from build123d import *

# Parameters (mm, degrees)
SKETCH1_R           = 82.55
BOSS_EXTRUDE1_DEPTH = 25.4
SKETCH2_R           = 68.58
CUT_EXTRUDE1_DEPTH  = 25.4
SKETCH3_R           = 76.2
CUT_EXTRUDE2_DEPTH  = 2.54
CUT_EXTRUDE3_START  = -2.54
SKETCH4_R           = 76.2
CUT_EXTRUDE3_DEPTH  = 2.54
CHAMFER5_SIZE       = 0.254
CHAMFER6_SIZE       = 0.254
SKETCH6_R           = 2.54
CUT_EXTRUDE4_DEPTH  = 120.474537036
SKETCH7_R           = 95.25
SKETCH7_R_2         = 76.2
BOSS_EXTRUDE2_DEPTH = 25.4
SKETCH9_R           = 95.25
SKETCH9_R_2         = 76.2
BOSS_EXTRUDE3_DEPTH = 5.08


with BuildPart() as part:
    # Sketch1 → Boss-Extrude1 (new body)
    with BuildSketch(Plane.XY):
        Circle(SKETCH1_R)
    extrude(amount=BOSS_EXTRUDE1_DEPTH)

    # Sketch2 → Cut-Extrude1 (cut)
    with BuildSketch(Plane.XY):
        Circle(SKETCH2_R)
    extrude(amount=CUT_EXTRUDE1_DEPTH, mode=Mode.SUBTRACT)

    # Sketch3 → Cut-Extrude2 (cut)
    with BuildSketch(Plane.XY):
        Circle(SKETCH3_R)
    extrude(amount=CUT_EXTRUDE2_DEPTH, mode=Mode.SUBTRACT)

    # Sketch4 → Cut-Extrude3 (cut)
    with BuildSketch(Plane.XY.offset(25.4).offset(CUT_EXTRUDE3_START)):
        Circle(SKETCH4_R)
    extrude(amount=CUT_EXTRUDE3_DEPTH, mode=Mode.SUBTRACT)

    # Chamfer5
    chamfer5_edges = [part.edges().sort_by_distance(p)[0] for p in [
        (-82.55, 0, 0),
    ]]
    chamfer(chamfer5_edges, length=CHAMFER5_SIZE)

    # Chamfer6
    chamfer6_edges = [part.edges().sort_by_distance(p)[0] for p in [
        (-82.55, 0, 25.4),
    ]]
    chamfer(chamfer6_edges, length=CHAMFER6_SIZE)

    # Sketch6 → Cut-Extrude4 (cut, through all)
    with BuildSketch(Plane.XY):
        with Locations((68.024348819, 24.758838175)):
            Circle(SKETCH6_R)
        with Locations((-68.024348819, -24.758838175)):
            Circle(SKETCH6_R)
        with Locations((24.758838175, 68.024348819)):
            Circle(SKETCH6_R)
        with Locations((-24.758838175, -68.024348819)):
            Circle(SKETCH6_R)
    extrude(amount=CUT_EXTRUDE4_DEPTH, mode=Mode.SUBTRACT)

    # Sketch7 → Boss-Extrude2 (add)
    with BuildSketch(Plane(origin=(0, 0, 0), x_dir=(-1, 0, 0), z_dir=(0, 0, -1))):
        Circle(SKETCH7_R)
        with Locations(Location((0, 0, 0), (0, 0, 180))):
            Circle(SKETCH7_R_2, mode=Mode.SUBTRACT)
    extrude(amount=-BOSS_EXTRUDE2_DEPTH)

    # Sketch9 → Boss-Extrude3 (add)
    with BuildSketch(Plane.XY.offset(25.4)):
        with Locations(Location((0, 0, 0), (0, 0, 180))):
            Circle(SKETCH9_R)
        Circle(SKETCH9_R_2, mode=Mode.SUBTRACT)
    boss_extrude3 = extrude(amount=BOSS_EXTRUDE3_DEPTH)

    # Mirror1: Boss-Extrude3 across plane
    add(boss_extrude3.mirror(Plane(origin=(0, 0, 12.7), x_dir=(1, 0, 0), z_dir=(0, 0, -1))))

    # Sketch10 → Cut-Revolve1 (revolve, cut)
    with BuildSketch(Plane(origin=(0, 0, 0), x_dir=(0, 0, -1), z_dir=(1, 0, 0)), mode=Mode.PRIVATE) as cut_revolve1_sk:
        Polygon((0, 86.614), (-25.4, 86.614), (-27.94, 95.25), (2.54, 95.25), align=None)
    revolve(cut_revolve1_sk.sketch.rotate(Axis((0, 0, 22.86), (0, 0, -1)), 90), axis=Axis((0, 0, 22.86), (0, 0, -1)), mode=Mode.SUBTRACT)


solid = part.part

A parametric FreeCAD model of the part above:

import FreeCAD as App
import Part
import Sketcher

V = App.Vector
Q = App.Units.Quantity


def edges_at(feature, points):
    """Names of the edges that pass closest to the given points."""
    edges = feature.Shape.Edges
    near = lambda p: min(range(len(edges)), key=lambda i: edges[i].distToShape(Part.Vertex(*p))[0])
    return sorted({f"Edge{near(p) + 1}" for p in points})

doc = App.newDocument("Part")
params = doc.addObject("Spreadsheet::Sheet", "Params")
for row, (alias, value) in enumerate([
    ("sketch1_diameter", "6.5 in"),
    ("pad1_length", "1 in"),
    ("sketch2_diameter", "5.4 in"),
    ("pocket1_length", "1 in"),
    ("sketch3_diameter", "6 in"),
    ("pocket2_length", "0.1 in"),
    ("sketch4_diameter", "6 in"),
    ("pocket3_length", "0.1 in"),
    ("chamfer_size", "0.01 in"),
    ("chamfer2_size", "0.01 in"),
    ("sketch5_diameter", "0.2 in"),
    ("sketch6_diameter", "6 in"),
    ("sketch6_diameter2", "7.5 in"),
    ("pad2_length", "1 in"),
    ("sketch7_diameter", "6 in"),
    ("sketch7_diameter2", "7.5 in"),
    ("pad3_length", "0.2 in"),
    ("sketch8_height", "1 in"),
    ("sketch8_height2", "1.2 in"),
    ("groove_angle", "360 deg"),
], start=1):
    params.set(f"A{row}", alias)
    params.set(f"B{row}", "=" + value)
    params.setAlias(f"B{row}", alias)

body = doc.addObject("PartDesign::Body", "Body")

sketch1 = body.newObject("Sketcher::SketchObject", "Sketch")
sketch1.AttachmentSupport = (doc.getObject("XY_Plane"), [""])
sketch1.MapMode = "FlatFace"
sketch1.addGeometry(Part.Circle(V(0, 0, 0), V(0, 0, 1), 83), False)
sketch1.addConstraint([
    Sketcher.Constraint("Coincident", 0, 3, -1, 1),
    Sketcher.Constraint("Diameter", 0, Q("6.5 in")),
])
sketch1.setExpression("Constraints[1]", "Params.sketch1_diameter")
pad1 = body.newObject("PartDesign::Pad", "Pad")
pad1.Profile = sketch1
pad1.setExpression("Length", "Params.pad1_length")

sketch2 = body.newObject("Sketcher::SketchObject", "Sketch001")
sketch2.AttachmentSupport = (doc.getObject("XY_Plane"), [""])
sketch2.MapMode = "FlatFace"
sketch2.addGeometry(Part.Circle(V(0, 0, 0), V(0, 0, 1), 69), False)
sketch2.addConstraint([
    Sketcher.Constraint("Coincident", 0, 3, -1, 1),
    Sketcher.Constraint("Diameter", 0, Q("5.4 in")),
])
sketch2.setExpression("Constraints[1]", "Params.sketch2_diameter")
pocket1 = body.newObject("PartDesign::Pocket", "Pocket")
pocket1.Profile = sketch2
pocket1.setExpression("Length", "Params.pocket1_length")
pocket1.Reversed = True

sketch3 = body.newObject("Sketcher::SketchObject", "Sketch002")
sketch3.AttachmentSupport = (doc.getObject("XY_Plane"), [""])
sketch3.MapMode = "FlatFace"
sketch3.addGeometry(Part.Circle(V(0, 0, 0), V(0, 0, 1), 76), False)
sketch3.addConstraint([
    Sketcher.Constraint("Coincident", 0, 3, -1, 1),
    Sketcher.Constraint("Diameter", 0, Q("6 in")),
])
sketch3.setExpression("Constraints[1]", "Params.sketch3_diameter")
pocket2 = body.newObject("PartDesign::Pocket", "Pocket001")
pocket2.Profile = sketch3
pocket2.setExpression("Length", "Params.pocket2_length")
pocket2.Reversed = True

sketch4 = body.newObject("Sketcher::SketchObject", "Sketch003")
sketch4.AttachmentSupport = (doc.getObject("XY_Plane"), [""])
sketch4.MapMode = "FlatFace"
sketch4.AttachmentOffset = App.Placement(V(0, 0, 0.9 * 25.4), App.Rotation())
sketch4.addGeometry(Part.Circle(V(0, 0, 0), V(0, 0, 1), 76), False)
sketch4.addConstraint([
    Sketcher.Constraint("Coincident", 0, 3, -1, 1),
    Sketcher.Constraint("Diameter", 0, Q("6 in")),
])
sketch4.setExpression("Constraints[1]", "Params.sketch4_diameter")
pocket3 = body.newObject("PartDesign::Pocket", "Pocket002")
pocket3.Profile = sketch4
pocket3.setExpression("Length", "Params.pocket3_length")
pocket3.Reversed = True
doc.recompute()

chamfer = body.newObject("PartDesign::Chamfer", "Chamfer")
chamfer.Base = (pocket3, edges_at(pocket3, [(-82.55, 0, 0)]))
chamfer.setExpression("Size", "Params.chamfer_size")
doc.recompute()

chamfer2 = body.newObject("PartDesign::Chamfer", "Chamfer001")
chamfer2.Base = (chamfer, edges_at(chamfer, [(-82.55, 0, 25.4)]))
chamfer2.setExpression("Size", "Params.chamfer2_size")

sketch5 = body.newObject("Sketcher::SketchObject", "Sketch004")
sketch5.AttachmentSupport = (doc.getObject("XY_Plane"), [""])
sketch5.MapMode = "FlatFace"
sketch5.addGeometry([
    Part.Circle(V(68, 24.8, 0), V(0, 0, 1), 2.5),
    Part.Circle(V(-68, -24.8, 0), V(0, 0, 1), 2.5),
    Part.Circle(V(24.8, 68, 0), V(0, 0, 1), 2.5),
    Part.Circle(V(-24.8, -68, 0), V(0, 0, 1), 2.5),
], False)
sketch5.addConstraint([
    Sketcher.Constraint("Equal", 0, 1),
    Sketcher.Constraint("Equal", 1, 2),
    Sketcher.Constraint("Equal", 2, 3),
    Sketcher.Constraint("Symmetric", 0, 3, 1, 3, -1, 1),
    Sketcher.Constraint("Symmetric", 2, 3, 3, 3, -1, 1),
    Sketcher.Constraint("Diameter", 0, Q("0.2 in")),
    Sketcher.Constraint("DistanceX", -1, 1, 0, 3, 68.024349),
    Sketcher.Constraint("DistanceY", -1, 1, 0, 3, 24.758838),
    Sketcher.Constraint("DistanceX", -1, 1, 2, 3, 24.758838),
    Sketcher.Constraint("DistanceY", -1, 1, 2, 3, 68.024349),
])
sketch5.setExpression("Constraints[5]", "Params.sketch5_diameter")
pocket4 = body.newObject("PartDesign::Pocket", "Pocket003")
pocket4.Profile = sketch5
pocket4.Type = "ThroughAll"
pocket4.Reversed = True

sketch6 = body.newObject("Sketcher::SketchObject", "Sketch005")
sketch6.AttachmentSupport = (doc.getObject("XY_Plane"), [""])
sketch6.MapMode = "FlatFace"
sketch6.addGeometry([
    Part.Circle(V(0, 0, 0), V(0, 0, 1), 95),
    Part.Circle(V(0, 0, 0), V(0, 0, 1), 76),
], False)
sketch6.addConstraint([
    Sketcher.Constraint("Coincident", 0, 3, -1, 1),
    Sketcher.Constraint("Coincident", 1, 3, -1, 1),
    Sketcher.Constraint("Diameter", 1, Q("6 in")),
    Sketcher.Constraint("Diameter", 0, Q("7.5 in")),
])
sketch6.setExpression("Constraints[2]", "Params.sketch6_diameter")
sketch6.setExpression("Constraints[3]", "Params.sketch6_diameter2")
pad2 = body.newObject("PartDesign::Pad", "Pad001")
pad2.Profile = sketch6
pad2.setExpression("Length", "Params.pad2_length")

sketch7 = body.newObject("Sketcher::SketchObject", "Sketch006")
sketch7.AttachmentSupport = (doc.getObject("XY_Plane"), [""])
sketch7.MapMode = "FlatFace"
sketch7.AttachmentOffset = App.Placement(V(0, 0, 1 * 25.4), App.Rotation())
sketch7.addGeometry([
    Part.Circle(V(0, 0, 0), V(0, 0, 1), 95),
    Part.Circle(V(0, 0, 0), V(0, 0, 1), 76),
], False)
sketch7.addConstraint([
    Sketcher.Constraint("Coincident", 0, 3, -1, 1),
    Sketcher.Constraint("Coincident", 1, 3, -1, 1),
    Sketcher.Constraint("Diameter", 1, Q("6 in")),
    Sketcher.Constraint("Diameter", 0, Q("7.5 in")),
])
sketch7.setExpression("Constraints[2]", "Params.sketch7_diameter")
sketch7.setExpression("Constraints[3]", "Params.sketch7_diameter2")
pad3 = body.newObject("PartDesign::Pad", "Pad002")
pad3.Profile = sketch7
pad3.setExpression("Length", "Params.pad3_length")
doc.recompute()

datumplane = body.newObject("PartDesign::Plane", "DatumPlane")
datumplane.AttachmentSupport = (doc.getObject("XY_Plane"), [""])
datumplane.MapMode = "FlatFace"
datumplane.AttachmentOffset = App.Placement(V(0, 0, 0.5 * 25.4), App.Rotation())
mirrored = body.newObject("PartDesign::Mirrored", "Mirrored")
mirrored.Originals = [pad3]
mirrored.MirrorPlane = (datumplane, [""])
body.Tip = mirrored

sketch8 = body.newObject("Sketcher::SketchObject", "Sketch007")
sketch8.AttachmentSupport = (doc.getObject("YZ_Plane"), [""])
sketch8.MapMode = "FlatFace"
sketch8.addGeometry([
    Part.LineSegment(V(87, 25, 0), V(87, 0, 0)),
    Part.LineSegment(V(87, 0, 0), V(95, -3, 0)),
    Part.LineSegment(V(95, -3, 0), V(95, 28, 0)),
    Part.LineSegment(V(95, 28, 0), V(87, 25, 0)),
], False)
sketch8.addConstraint([
    Sketcher.Constraint("Coincident", 0, 2, 1, 1),
    Sketcher.Constraint("Coincident", 1, 2, 2, 1),
    Sketcher.Constraint("Coincident", 2, 2, 3, 1),
    Sketcher.Constraint("Coincident", 3, 2, 0, 1),
    Sketcher.Constraint("Vertical", 0),
    Sketcher.Constraint("Vertical", 2),
    Sketcher.Constraint("PointOnObject", 0, 2, -1),
    Sketcher.Constraint("Equal", 1, 3),
    Sketcher.Constraint("DistanceY", 0, 2, 0, 1, Q("1 in")),
    Sketcher.Constraint("DistanceY", 2, 1, 2, 2, Q("1.2 in")),
    Sketcher.Constraint("DistanceX", -1, 1, 0, 2, Q("3.41 in")),
    Sketcher.Constraint("DistanceX", -1, 1, 1, 2, Q("3.75 in")),
])
sketch8.setExpression("Constraints[8]", "Params.sketch8_height")
sketch8.setExpression("Constraints[9]", "Params.sketch8_height2")
groove = body.newObject("PartDesign::Groove", "Groove")
groove.Profile = sketch8
groove.ReferenceAxis = (sketch8, ["V_Axis"])
groove.setExpression("Angle", "Params.groove_angle")

doc.recompute()
